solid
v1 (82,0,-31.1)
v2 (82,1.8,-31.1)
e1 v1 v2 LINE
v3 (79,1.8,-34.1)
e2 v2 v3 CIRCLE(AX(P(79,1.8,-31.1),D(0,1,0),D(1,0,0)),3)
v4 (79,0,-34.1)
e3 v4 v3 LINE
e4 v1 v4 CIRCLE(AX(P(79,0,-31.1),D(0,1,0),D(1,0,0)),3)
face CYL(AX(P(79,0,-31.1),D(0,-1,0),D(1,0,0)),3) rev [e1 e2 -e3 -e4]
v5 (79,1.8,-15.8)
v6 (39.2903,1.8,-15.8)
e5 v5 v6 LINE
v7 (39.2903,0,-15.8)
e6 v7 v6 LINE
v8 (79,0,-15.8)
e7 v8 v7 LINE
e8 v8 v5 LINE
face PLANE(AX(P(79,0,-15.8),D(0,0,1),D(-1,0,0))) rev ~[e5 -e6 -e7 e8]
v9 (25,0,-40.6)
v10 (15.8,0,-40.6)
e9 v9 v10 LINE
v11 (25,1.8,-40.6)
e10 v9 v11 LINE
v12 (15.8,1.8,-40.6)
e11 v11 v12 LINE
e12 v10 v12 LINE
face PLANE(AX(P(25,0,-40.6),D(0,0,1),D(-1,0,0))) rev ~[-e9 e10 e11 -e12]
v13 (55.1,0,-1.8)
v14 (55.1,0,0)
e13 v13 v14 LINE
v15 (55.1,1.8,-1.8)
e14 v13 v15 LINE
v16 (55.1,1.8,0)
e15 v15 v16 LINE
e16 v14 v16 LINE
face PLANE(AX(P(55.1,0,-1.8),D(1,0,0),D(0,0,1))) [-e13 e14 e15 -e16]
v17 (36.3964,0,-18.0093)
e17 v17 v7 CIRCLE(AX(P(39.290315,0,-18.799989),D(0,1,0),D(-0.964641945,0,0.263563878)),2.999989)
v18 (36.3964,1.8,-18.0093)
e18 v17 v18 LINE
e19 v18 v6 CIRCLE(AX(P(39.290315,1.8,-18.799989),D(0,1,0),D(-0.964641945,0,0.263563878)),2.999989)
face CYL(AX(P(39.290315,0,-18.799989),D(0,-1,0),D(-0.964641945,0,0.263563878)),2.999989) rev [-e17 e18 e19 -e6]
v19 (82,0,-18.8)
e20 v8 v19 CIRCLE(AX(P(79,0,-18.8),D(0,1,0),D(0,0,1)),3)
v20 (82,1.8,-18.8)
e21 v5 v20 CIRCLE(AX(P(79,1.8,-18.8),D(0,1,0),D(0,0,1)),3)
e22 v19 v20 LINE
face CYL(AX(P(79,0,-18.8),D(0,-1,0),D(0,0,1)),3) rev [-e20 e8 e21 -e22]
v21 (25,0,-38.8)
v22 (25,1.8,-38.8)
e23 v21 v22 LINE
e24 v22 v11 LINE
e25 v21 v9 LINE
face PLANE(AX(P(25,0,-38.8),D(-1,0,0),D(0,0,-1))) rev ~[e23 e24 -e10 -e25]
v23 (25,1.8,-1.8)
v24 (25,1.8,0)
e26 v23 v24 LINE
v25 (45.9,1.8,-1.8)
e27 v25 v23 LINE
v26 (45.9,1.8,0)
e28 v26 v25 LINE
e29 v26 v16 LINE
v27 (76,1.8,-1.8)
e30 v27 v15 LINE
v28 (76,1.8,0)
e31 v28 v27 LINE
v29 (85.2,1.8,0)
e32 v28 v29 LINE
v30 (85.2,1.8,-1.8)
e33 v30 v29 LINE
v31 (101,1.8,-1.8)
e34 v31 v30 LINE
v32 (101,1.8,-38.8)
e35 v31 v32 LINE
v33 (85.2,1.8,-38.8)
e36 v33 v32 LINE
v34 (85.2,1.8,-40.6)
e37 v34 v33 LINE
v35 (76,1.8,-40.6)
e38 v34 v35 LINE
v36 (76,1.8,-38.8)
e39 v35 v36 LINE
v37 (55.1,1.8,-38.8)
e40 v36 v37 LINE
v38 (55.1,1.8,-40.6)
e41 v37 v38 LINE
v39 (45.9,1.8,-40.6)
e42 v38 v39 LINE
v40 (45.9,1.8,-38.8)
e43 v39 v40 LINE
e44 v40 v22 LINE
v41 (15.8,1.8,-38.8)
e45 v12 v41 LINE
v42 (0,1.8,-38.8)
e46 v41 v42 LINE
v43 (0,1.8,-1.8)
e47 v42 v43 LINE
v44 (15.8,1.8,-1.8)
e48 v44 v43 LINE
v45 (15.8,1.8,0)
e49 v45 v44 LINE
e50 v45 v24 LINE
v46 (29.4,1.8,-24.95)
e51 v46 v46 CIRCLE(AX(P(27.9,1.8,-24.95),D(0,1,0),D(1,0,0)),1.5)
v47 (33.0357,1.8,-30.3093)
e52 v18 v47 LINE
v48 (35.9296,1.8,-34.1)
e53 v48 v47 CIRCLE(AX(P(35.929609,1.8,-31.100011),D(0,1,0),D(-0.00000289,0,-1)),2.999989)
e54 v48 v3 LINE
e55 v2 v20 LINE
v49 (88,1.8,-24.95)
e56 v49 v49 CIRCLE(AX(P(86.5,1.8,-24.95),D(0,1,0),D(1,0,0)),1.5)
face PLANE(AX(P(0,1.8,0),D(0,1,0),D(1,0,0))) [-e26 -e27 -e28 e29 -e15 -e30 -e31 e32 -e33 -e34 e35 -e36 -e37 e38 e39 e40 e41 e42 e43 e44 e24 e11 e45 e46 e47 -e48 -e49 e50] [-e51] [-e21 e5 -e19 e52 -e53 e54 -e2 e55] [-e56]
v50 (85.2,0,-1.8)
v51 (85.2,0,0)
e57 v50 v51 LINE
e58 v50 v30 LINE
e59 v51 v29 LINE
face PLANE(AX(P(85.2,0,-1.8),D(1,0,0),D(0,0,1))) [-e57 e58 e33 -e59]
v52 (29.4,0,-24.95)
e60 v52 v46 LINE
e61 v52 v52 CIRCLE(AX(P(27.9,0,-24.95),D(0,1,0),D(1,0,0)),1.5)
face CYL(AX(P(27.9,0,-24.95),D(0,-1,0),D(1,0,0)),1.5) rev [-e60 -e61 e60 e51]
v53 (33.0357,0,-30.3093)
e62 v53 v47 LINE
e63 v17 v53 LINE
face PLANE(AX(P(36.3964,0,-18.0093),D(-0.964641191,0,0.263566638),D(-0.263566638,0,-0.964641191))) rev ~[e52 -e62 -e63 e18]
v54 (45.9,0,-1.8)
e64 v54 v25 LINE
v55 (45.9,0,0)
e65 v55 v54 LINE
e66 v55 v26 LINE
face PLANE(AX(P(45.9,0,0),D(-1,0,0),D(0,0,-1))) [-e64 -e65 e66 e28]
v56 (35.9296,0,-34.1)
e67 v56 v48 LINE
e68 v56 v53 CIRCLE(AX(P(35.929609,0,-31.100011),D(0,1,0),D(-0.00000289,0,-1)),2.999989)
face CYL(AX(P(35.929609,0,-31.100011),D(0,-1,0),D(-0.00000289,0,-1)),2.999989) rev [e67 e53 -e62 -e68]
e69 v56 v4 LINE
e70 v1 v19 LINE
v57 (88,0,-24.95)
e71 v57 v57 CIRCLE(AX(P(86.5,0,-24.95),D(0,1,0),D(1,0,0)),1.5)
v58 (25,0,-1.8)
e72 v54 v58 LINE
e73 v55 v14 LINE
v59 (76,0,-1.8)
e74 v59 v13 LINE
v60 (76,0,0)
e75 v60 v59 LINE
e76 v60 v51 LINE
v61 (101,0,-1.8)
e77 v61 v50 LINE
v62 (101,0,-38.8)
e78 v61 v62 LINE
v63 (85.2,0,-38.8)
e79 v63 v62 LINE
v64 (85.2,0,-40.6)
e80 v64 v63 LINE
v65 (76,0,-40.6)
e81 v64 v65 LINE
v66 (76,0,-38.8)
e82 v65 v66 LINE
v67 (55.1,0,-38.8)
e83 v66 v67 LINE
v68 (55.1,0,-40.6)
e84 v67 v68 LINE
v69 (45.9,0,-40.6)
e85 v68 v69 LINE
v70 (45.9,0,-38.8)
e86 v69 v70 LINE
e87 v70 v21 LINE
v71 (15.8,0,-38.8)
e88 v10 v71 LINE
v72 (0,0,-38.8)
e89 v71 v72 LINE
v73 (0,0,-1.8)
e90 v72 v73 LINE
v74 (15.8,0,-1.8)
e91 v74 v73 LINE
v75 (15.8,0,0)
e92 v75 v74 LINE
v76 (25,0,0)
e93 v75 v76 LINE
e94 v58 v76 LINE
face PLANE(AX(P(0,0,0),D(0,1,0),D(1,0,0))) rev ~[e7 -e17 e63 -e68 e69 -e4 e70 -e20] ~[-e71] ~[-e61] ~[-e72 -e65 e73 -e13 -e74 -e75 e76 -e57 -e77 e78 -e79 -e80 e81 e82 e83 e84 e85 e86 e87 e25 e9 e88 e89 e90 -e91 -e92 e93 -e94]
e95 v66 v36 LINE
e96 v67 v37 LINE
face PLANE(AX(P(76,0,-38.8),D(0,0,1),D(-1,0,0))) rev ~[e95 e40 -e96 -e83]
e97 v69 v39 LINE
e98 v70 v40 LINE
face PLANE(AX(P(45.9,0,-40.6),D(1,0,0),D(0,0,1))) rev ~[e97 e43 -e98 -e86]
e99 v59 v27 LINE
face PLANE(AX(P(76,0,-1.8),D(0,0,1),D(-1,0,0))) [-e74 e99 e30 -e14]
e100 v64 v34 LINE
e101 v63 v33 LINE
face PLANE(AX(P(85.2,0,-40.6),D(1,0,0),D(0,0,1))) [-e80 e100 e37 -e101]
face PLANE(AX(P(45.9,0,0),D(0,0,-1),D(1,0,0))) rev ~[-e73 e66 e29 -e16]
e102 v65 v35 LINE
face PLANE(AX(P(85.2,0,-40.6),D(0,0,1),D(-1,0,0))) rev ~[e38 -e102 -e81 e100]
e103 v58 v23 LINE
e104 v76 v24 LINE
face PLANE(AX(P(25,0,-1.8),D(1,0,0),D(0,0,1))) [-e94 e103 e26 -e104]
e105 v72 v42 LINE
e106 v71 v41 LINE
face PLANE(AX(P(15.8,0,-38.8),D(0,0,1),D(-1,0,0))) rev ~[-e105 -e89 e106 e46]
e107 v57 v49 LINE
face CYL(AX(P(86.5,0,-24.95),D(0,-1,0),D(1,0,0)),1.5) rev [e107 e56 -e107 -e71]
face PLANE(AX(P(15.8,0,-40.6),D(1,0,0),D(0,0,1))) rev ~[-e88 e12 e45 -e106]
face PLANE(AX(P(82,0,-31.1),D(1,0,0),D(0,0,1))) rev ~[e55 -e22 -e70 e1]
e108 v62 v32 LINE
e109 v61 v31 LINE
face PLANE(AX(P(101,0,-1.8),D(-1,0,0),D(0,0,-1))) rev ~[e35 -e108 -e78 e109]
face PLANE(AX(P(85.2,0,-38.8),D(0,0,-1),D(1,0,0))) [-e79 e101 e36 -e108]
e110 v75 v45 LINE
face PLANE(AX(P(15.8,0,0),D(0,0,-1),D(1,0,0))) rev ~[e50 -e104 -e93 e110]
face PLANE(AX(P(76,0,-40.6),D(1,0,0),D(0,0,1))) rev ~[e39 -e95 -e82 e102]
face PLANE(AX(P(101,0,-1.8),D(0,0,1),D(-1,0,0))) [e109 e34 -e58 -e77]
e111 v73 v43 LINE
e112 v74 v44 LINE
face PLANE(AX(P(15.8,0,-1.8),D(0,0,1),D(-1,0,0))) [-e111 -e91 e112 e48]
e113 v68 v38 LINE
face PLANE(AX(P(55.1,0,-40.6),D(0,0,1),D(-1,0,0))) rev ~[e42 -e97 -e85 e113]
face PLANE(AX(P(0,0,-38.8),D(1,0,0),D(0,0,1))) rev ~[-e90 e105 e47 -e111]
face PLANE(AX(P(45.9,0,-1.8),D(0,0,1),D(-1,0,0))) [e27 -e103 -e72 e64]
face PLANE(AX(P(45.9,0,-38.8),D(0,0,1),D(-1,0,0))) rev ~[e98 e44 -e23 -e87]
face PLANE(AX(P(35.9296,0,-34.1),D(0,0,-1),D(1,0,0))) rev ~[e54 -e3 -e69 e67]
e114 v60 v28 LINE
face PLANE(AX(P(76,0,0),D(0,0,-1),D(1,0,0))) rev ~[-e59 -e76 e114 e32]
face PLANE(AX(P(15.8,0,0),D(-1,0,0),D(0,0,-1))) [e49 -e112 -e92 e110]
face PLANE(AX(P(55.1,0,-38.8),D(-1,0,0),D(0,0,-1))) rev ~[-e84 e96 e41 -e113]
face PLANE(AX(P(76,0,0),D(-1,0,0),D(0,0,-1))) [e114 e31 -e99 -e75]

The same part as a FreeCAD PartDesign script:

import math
import FreeCAD as App
import Part
import Sketcher
Q = App.Units.Quantity


def add_polygon(sketch, points):
    """Adds a closed chain of lines whose ends are joined by coincident constraints."""
    first, n = sketch.GeometryCount, len(points)
    for a, b in zip(points, points[1:] + points[:1]):
        sketch.addGeometry(Part.LineSegment(App.Vector(*a, 0), App.Vector(*b, 0)), False)
    for i in range(n):
        sketch.addConstraint(Sketcher.Constraint("Coincident", first + i, 2, first + (i + 1) % n, 1))

doc = App.newDocument("Part")
params = doc.addObject("Spreadsheet::Sheet", "Params")
for row, (alias, value) in enumerate([
    ("sketch1_diameter", "3 mm"),
    ("sketch1_radius", "3 mm"),
    ("sketch1_width", "9.2 mm"),
    ("sketch1_width2", "15.8 mm"),
    ("sketch1_height", "1.8 mm"),
    ("pad1_length", "1.8 mm"),
], start=1):
    params.set(f"A{row}", alias)
    params.set(f"B{row}", "=" + value)
    params.setAlias(f"B{row}", alias)

body = doc.addObject("PartDesign::Body", "Body")

sketch1 = body.newObject("Sketcher::SketchObject", "Sketch")
sketch1.AttachmentSupport = (doc.getObject("XZ_Plane"), [""])
sketch1.MapMode = "FlatFace"
add_polygon(sketch1, [(15.8, -1.8), (15.8, 0), (25, 0), (25, -1.8), (45.9, -1.8), (45.9, 0), (55.1, 0), (55.1, -1.8), (76, -1.8), (76, 0), (85.2, 0), (85.2, -1.8), (101, -1.8), (101, -38.8), (85.2, -38.8), (85.2, -40.6), (76, -40.6), (76, -38.8), (55.1, -38.8), (55.1, -40.6), (45.9, -40.6), (45.9, -38.8), (25, -38.8), (25, -40.6), (15.8, -40.6), (15.8, -38.8), (0, -38.8), (0, -1.8)])
sketch1.addGeometry(Part.Circle(App.Vector(27.9, -24.9, 0), App.Vector(0, 0, 1), 1.5), False)
sketch1.addGeometry(Part.ArcOfCircle(Part.Circle(App.Vector(35.9, -31.1, 0), App.Vector(0, 0, 1), 3), math.radians(165), math.radians(270)), False)
sketch1.addGeometry(Part.LineSegment(App.Vector(35.9, -34.1, 0), App.Vector(79, -34.1, 0)), False)
sketch1.addGeometry(Part.ArcOfCircle(Part.Circle(App.Vector(79, -31.1, 0), App.Vector(0, 0, 1), 3), math.radians(-90), math.radians(0)), False)
sketch1.addGeometry(Part.LineSegment(App.Vector(82, -31.1, 0), App.Vector(82, -18.8, 0)), False)
sketch1.addGeometry(Part.ArcOfCircle(Part.Circle(App.Vector(79, -18.8, 0), App.Vector(0, 0, 1), 3), math.radians(0), math.radians(90)), False)
sketch1.addGeometry(Part.LineSegment(App.Vector(79, -15.8, 0), App.Vector(39.3, -15.8, 0)), False)
sketch1.addGeometry(Part.ArcOfCircle(Part.Circle(App.Vector(39.3, -18.8, 0), App.Vector(0, 0, 1), 3), math.radians(90), math.radians(165)), False)
sketch1.addGeometry(Part.LineSegment(App.Vector(36.4, -18, 0), App.Vector(33, -30.3, 0)), False)
sketch1.addGeometry(Part.Circle(App.Vector(86.5, -24.9, 0), App.Vector(0, 0, 1), 1.5), False)
sketch1.addConstraint(Sketcher.Constraint("Tangent", 29, 2, 30, 1))
sketch1.addConstraint(Sketcher.Constraint("Tangent", 30, 2, 31, 1))
sketch1.addConstraint(Sketcher.Constraint("Tangent", 31, 2, 32, 1))
sketch1.addConstraint(Sketcher.Constraint("Tangent", 32, 2, 33, 1))
sketch1.addConstraint(Sketcher.Constraint("Tangent", 33, 2, 34, 1))
sketch1.addConstraint(Sketcher.Constraint("Tangent", 34, 2, 35, 1))
sketch1.addConstraint(Sketcher.Constraint("Tangent", 35, 2, 36, 1))
sketch1.addConstraint(Sketcher.Constraint("Tangent", 36, 2, 29, 1))
sketch1.addConstraint(Sketcher.Constraint("Vertical", 0))
sketch1.addConstraint(Sketcher.Constraint("Horizontal", 1))
sketch1.addConstraint(Sketcher.Constraint("Vertical", 2))
sketch1.addConstraint(Sketcher.Constraint("Horizontal", 3))
sketch1.addConstraint(Sketcher.Constraint("Vertical", 4))
sketch1.addConstraint(Sketcher.Constraint("Horizontal", 5))
sketch1.addConstraint(Sketcher.Constraint("Vertical", 6))
sketch1.addConstraint(Sketcher.Constraint("Horizontal", 7))
sketch1.addConstraint(Sketcher.Constraint("Vertical", 8))
sketch1.addConstraint(Sketcher.Constraint("Horizontal", 9))
sketch1.addConstraint(Sketcher.Constraint("Vertical", 10))
sketch1.addConstraint(Sketcher.Constraint("Horizontal", 11))
sketch1.addConstraint(Sketcher.Constraint("Vertical", 12))
sketch1.addConstraint(Sketcher.Constraint("Horizontal", 13))
sketch1.addConstraint(Sketcher.Constraint("Vertical", 14))
sketch1.addConstraint(Sketcher.Constraint("Horizontal", 15))
sketch1.addConstraint(Sketcher.Constraint("Vertical", 16))
sketch1.addConstraint(Sketcher.Constraint("Horizontal", 17))
sketch1.addConstraint(Sketcher.Constraint("Vertical", 18))
sketch1.addConstraint(Sketcher.Constraint("Horizontal", 19))
sketch1.addConstraint(Sketcher.Constraint("Vertical", 20))
sketch1.addConstraint(Sketcher.Constraint("Horizontal", 21))
sketch1.addConstraint(Sketcher.Constraint("Vertical", 22))
sketch1.addConstraint(Sketcher.Constraint("Horizontal", 23))
sketch1.addConstraint(Sketcher.Constraint("Vertical", 24))
sketch1.addConstraint(Sketcher.Constraint("Horizontal", 25))
sketch1.addConstraint(Sketcher.Constraint("Vertical", 26))
sketch1.addConstraint(Sketcher.Constraint("Horizontal", 27))
sketch1.addConstraint(Sketcher.Constraint("Horizontal", 30))
sketch1.addConstraint(Sketcher.Constraint("Vertical", 32))
sketch1.addConstraint(Sketcher.Constraint("Horizontal", 34))
sketch1.addConstraint(Sketcher.Constraint("Equal", 29, 31))
sketch1.addConstraint(Sketcher.Constraint("Equal", 31, 33))
sketch1.addConstraint(Sketcher.Constraint("Equal", 33, 35))
sketch1.addConstraint(Sketcher.Constraint("Equal", 28, 37))
sketch1.addConstraint(Sketcher.Constraint("PointOnObject", 0, 2, -1))
sketch1.addConstraint(Sketcher.Constraint("PointOnObject", 4, 2, -1))
sketch1.addConstraint(Sketcher.Constraint("PointOnObject", 8, 2, -1))
sketch1.addConstraint(Sketcher.Constraint("PointOnObject", 25, 2, -2))
sketch1.addConstraint(Sketcher.Constraint("Horizontal", 28, 3, 37, 3))
sketch1.addConstraint(Sketcher.Constraint("Horizontal", 3, 2, 6, 2))
sketch1.addConstraint(Sketcher.Constraint("Horizontal", 7, 2, 10, 2))
sketch1.addConstraint(Sketcher.Constraint("Horizontal", 13, 2, 16, 2))
sketch1.addConstraint(Sketcher.Constraint("Horizontal", 15, 2, 18, 2))
sketch1.addConstraint(Sketcher.Constraint("Horizontal", 17, 2, 20, 2))
sketch1.addConstraint(Sketcher.Constraint("Horizontal", 19, 2, 22, 2))
sketch1.addConstraint(Sketcher.Constraint("Horizontal", 21, 2, 24, 2))
sketch1.addConstraint(Sketcher.Constraint("Horizontal", 11, 2, 26, 2))
sketch1.addConstraint(Sketcher.Constraint("Vertical", 10, 2, 13, 2))
sketch1.addConstraint(Sketcher.Constraint("Vertical", 8, 2, 15, 2))
sketch1.addConstraint(Sketcher.Constraint("Vertical", 6, 2, 17, 2))
sketch1.addConstraint(Sketcher.Constraint("Vertical", 4, 2, 19, 2))
sketch1.addConstraint(Sketcher.Constraint("Vertical", 2, 2, 21, 2))
sketch1.addConstraint(Sketcher.Constraint("Vertical", 0, 2, 23, 2))
sketch1.addConstraint(Sketcher.Constraint("Equal", 1, 5))
sketch1.addConstraint(Sketcher.Constraint("Equal", 3, 7))
sketch1.addConstraint(Sketcher.Constraint("Equal", 5, 9))
sketch1.addConstraint(Sketcher.Constraint("Equal", 13, 25))
sketch1.addConstraint(Sketcher.Constraint("Equal", 10, 14))
sketch1.addConstraint(Sketcher.Constraint("Diameter", 28, Q("3 mm")))
sketch1.addConstraint(Sketcher.Constraint("Radius", 29, Q("3 mm")))
sketch1.addConstraint(Sketcher.Constraint("DistanceX", 1, 1, 1, 2, Q("9.2 mm")))
sketch1.addConstraint(Sketcher.Constraint("DistanceX", 11, 1, 11, 2, Q("15.8 mm")))
sketch1.addConstraint(Sketcher.Constraint("DistanceY", 0, 1, 0, 2, Q("1.8 mm")))
sketch1.addConstraint(Sketcher.Constraint("DistanceX", -1, 1, 11, 2, Q("101 mm")))
sketch1.addConstraint(Sketcher.Constraint("DistanceX", 7, 2, 33, 3, Q("3 mm")))
sketch1.addConstraint(Sketcher.Constraint("DistanceY", 33, 2, 7, 2, Q("14 mm")))
sketch1.addConstraint(Sketcher.Constraint("DistanceY", 14, 2, -1, 1, Q("40.6 mm")))
sketch1.addConstraint(Sketcher.Constraint("DistanceX", 28, 3, 37, 3, Q("58.6 mm")))
sketch1.addConstraint(Sketcher.Constraint("DistanceX", 31, 2, 37, 3, Q("4.5 mm")))
sketch1.addConstraint(Sketcher.Constraint("DistanceY", 29, 2, 28, 3, Q("9.15 mm")))
sketch1.addConstraint(Sketcher.Constraint("DistanceY", 37, 3, 33, 2, Q("9.15 mm")))
sketch1.addConstraint(Sketcher.Constraint("DistanceX", 30, 1, 30, 2, Q("43.0704 mm")))
sketch1.addConstraint(Sketcher.Constraint("DistanceX", 34, 2, 34, 1, Q("39.7097 mm")))
sketch1.setExpression("Constraints[95]", "Params.sketch1_diameter")
sketch1.setExpression("Constraints[96]", "Params.sketch1_radius")
sketch1.setExpression("Constraints[97]", "Params.sketch1_width")
sketch1.setExpression("Constraints[98]", "Params.sketch1_width2")
sketch1.setExpression("Constraints[99]", "Params.sketch1_height")
pad1 = body.newObject("PartDesign::Pad", "Pad")
pad1.Profile = sketch1
pad1.setExpression("Length", "Params.pad1_length")
pad1.Reversed = True

doc.recompute()
